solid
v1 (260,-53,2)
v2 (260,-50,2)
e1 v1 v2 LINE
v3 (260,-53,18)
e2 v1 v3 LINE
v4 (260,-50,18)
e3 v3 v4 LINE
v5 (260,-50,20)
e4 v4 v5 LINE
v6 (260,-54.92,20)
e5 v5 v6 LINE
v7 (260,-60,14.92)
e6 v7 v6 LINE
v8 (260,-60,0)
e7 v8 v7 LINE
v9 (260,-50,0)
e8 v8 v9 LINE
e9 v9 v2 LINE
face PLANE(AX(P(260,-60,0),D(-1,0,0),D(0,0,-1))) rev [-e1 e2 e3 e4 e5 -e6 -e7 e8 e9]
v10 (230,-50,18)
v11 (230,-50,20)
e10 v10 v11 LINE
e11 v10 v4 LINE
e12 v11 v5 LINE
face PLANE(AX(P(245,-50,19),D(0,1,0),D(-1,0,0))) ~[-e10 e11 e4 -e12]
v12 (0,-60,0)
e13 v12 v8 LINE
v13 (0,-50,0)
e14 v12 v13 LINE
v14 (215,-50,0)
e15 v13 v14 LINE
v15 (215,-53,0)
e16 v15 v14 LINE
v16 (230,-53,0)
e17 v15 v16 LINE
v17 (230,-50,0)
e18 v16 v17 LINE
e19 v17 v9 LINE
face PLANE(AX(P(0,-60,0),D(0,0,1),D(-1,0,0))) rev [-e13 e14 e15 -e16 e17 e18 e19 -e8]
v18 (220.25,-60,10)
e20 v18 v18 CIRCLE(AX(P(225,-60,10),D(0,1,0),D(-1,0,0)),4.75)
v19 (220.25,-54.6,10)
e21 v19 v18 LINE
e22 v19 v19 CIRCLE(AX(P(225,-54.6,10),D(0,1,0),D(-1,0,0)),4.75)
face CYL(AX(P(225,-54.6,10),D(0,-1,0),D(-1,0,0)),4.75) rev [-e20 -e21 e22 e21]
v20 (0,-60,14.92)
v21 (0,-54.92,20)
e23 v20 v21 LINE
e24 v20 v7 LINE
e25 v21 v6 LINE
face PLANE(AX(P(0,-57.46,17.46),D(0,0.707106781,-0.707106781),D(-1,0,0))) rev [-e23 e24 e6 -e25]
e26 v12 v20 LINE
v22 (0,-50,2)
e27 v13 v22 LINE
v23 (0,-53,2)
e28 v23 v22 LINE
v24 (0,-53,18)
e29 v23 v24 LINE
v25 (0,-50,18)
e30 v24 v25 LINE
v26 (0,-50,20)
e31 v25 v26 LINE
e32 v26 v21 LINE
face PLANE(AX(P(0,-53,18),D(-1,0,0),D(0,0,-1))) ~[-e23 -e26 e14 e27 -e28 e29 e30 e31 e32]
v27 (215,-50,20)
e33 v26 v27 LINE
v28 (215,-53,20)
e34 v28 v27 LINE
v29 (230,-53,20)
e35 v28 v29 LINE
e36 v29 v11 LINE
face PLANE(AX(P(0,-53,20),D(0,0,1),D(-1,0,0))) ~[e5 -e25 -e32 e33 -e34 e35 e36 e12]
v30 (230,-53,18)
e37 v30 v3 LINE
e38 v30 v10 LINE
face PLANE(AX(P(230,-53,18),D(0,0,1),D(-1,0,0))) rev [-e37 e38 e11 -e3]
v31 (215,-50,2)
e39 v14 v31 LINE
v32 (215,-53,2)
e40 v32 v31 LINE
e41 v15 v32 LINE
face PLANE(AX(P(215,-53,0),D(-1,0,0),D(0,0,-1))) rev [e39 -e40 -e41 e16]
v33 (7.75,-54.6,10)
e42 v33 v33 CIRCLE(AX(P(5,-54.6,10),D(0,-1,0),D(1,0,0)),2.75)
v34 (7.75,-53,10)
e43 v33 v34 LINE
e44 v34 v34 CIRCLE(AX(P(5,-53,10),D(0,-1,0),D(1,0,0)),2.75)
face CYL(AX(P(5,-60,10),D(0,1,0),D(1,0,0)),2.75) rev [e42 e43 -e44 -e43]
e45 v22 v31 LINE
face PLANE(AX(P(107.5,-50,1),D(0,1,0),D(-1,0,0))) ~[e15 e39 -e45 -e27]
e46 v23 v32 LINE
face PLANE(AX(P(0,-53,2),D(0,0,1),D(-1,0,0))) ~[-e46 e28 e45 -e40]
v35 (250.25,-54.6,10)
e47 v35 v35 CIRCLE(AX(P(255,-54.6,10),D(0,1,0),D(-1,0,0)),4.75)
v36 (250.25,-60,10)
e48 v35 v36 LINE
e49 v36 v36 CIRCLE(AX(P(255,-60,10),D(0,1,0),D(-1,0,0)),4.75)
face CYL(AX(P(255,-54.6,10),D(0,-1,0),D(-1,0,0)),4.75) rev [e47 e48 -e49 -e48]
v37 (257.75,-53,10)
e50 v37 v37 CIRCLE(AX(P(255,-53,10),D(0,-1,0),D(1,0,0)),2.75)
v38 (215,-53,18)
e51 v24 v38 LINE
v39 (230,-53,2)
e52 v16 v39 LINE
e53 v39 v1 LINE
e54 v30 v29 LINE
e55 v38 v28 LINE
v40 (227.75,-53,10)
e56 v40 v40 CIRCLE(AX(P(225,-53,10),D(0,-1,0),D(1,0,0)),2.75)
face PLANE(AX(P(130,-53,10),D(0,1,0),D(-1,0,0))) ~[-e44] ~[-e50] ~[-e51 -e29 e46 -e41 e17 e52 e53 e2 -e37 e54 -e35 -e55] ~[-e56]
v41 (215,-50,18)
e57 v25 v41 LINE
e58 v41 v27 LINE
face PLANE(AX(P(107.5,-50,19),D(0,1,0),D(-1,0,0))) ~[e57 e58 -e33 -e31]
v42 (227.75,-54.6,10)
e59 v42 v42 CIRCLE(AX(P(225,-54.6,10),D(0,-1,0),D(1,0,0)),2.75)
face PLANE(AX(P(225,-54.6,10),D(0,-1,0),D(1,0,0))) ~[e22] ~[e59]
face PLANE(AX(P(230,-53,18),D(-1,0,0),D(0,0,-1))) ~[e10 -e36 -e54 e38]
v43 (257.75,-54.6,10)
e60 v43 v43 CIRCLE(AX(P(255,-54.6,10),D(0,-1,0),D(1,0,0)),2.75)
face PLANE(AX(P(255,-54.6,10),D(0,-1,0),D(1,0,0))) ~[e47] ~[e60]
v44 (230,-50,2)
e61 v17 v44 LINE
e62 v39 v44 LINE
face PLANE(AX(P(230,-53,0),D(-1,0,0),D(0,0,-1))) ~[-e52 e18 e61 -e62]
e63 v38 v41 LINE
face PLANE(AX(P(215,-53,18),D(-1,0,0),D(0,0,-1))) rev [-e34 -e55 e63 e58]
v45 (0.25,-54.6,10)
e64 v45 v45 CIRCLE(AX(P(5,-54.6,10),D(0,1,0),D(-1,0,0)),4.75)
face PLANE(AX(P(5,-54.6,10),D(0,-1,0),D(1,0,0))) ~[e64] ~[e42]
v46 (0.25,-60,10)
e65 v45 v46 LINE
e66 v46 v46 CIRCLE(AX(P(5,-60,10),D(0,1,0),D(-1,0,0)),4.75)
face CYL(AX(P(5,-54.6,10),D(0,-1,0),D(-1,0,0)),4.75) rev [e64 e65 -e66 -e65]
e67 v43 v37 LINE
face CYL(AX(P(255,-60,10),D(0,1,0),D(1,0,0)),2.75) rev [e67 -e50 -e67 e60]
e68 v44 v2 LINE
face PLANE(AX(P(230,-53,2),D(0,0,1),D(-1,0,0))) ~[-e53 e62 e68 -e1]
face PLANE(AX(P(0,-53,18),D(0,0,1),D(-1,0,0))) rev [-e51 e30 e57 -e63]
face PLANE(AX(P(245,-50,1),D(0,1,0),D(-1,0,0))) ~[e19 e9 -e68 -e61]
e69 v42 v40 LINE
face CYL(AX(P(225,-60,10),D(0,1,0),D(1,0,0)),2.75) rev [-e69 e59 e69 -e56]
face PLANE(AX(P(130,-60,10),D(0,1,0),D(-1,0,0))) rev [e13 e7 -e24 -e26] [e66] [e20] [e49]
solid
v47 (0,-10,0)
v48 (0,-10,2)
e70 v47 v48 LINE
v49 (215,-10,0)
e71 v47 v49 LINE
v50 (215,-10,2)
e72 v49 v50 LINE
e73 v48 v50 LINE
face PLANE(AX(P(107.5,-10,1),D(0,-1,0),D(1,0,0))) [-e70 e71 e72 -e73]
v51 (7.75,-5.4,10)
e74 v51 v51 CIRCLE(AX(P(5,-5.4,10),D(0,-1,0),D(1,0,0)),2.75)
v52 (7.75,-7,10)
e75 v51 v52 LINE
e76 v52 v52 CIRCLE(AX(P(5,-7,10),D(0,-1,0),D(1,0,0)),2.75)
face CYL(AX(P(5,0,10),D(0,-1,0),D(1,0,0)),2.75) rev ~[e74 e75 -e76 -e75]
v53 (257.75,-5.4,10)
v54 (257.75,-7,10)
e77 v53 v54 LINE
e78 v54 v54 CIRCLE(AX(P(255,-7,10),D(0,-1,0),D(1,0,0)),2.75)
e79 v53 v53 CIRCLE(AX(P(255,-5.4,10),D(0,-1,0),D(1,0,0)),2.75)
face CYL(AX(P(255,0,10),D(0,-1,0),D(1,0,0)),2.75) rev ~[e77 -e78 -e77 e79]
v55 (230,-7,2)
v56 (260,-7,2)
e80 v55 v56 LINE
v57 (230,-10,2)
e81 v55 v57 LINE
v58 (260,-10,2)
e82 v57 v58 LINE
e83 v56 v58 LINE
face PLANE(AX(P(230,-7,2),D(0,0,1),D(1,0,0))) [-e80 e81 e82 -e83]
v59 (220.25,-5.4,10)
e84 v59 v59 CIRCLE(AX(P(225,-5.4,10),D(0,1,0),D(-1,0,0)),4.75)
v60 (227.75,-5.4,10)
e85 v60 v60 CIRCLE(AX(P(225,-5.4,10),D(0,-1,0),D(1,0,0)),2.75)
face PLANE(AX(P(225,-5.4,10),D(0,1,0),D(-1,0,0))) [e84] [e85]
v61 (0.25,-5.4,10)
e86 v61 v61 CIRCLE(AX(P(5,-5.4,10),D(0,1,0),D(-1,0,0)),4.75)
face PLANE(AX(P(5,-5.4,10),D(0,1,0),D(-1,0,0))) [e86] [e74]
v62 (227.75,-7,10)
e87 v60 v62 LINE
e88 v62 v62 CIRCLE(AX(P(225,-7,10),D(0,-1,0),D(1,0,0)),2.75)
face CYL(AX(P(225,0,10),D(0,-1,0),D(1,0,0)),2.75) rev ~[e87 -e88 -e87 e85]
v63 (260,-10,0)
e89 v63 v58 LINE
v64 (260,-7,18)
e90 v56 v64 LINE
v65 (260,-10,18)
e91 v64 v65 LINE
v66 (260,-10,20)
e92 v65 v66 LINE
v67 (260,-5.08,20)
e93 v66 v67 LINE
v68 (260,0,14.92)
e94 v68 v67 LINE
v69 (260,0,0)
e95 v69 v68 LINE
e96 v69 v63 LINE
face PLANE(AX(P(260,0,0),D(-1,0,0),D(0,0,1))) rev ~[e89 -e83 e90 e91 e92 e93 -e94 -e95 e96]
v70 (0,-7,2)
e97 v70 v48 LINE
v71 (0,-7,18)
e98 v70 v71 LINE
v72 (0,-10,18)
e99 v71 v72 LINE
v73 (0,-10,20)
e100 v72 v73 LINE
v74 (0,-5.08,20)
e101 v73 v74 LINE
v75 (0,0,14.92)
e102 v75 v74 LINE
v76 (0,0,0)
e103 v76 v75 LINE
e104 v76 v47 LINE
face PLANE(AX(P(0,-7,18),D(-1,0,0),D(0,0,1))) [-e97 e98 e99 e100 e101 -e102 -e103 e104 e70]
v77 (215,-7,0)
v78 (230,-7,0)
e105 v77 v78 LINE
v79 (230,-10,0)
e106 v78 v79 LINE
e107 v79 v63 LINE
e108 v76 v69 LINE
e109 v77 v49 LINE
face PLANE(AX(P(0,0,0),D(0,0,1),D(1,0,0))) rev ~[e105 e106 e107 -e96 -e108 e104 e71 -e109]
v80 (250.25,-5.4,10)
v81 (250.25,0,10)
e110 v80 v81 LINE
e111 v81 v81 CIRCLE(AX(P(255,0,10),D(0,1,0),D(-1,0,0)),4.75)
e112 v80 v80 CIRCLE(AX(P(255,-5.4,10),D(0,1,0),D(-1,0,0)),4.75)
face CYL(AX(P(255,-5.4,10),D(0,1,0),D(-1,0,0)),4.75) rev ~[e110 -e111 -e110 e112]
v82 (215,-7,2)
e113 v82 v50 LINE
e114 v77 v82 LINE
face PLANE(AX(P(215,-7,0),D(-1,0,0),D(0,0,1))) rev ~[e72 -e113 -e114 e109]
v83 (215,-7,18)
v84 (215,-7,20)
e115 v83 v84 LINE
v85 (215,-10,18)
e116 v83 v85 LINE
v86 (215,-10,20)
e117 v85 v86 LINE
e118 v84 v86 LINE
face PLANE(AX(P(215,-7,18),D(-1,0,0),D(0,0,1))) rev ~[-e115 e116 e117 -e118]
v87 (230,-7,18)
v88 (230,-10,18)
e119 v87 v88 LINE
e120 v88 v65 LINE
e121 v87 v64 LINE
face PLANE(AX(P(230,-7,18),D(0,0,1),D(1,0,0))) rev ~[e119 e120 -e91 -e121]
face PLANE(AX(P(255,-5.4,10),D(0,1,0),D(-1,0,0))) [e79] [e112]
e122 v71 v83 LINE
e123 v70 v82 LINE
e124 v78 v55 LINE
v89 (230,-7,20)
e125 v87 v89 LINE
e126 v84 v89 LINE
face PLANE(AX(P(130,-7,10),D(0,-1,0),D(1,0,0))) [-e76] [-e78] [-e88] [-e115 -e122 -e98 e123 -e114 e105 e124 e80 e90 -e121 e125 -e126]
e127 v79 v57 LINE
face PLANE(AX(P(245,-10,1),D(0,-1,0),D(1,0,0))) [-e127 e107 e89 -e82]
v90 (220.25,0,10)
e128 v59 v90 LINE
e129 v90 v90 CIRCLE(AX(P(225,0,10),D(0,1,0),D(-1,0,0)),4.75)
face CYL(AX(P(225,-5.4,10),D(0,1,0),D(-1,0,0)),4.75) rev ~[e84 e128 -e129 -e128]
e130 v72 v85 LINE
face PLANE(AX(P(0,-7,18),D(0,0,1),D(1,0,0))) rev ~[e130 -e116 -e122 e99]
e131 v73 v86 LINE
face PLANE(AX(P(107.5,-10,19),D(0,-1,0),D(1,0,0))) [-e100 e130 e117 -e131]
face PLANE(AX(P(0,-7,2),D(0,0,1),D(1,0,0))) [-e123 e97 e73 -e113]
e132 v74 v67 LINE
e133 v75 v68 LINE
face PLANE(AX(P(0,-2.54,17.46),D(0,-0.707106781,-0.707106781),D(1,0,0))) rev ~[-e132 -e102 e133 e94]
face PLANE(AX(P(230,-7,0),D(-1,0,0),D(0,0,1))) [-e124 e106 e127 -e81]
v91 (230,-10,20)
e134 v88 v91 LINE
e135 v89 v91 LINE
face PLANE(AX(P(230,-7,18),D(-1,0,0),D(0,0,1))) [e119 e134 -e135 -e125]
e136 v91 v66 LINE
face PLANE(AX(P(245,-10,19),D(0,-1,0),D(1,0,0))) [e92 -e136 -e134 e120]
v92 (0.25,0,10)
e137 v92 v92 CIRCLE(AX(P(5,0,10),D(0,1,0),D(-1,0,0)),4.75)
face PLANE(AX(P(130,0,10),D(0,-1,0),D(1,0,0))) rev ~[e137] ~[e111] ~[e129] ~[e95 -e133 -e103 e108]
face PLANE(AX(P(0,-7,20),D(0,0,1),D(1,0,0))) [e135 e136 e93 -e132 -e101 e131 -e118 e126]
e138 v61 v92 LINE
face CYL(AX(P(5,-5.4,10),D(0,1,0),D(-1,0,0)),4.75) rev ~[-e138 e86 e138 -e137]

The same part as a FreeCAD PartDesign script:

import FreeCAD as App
import Part
import Sketcher

V = App.Vector


def edges_at(feature, points):
    """Names of the edges that pass closest to the given points."""
    edges = feature.Shape.Edges
    near = lambda p: min(range(len(edges)), key=lambda i: edges[i].distToShape(Part.Vertex(*p))[0])
    return sorted({f"Edge{near(p) + 1}" for p in points})


def add_polygon(sketch, points):
    """Adds a closed chain of lines whose ends are joined by coincident constraints."""
    first, n = sketch.GeometryCount, len(points)
    for a, b in zip(points, points[1:] + points[:1]):
        sketch.addGeometry(Part.LineSegment(App.Vector(*a, 0), App.Vector(*b, 0)), False)
    for i in range(n):
        sketch.addConstraint(Sketcher.Constraint("Coincident", first + i, 2, first + (i + 1) % n, 1))

doc = App.newDocument("Part")
params = doc.addObject("Spreadsheet::Sheet", "Params")
for row, (alias, value) in enumerate([
    ("sketch1_width", "260 mm"),
    ("sketch1_height", "20 mm"),
    ("pad1_length", "7 mm"),
    ("sketch2_diameter", "5.5 mm"),
    ("hole_diameter", "5.5 mm"),
    ("hole_cbore_diameter", "9.5 mm"),
    ("hole_cbore_depth", "5.4 mm"),
    ("sketch3_width", "215 mm"),
    ("sketch3_width2", "30 mm"),
    ("sketch3_height", "2 mm"),
    ("pad2_length", "3 mm"),
    ("chamfer_size", "5.08 mm"),
], start=1):
    params.set(f"A{row}", alias)
    params.set(f"B{row}", "=" + value)
    params.setAlias(f"B{row}", alias)

body = doc.addObject("PartDesign::Body", "Body")

sketch1 = body.newObject("Sketcher::SketchObject", "Sketch")
sketch1.AttachmentSupport = (doc.getObject("XZ_Plane"), [""])
sketch1.MapMode = "FlatFace"
add_polygon(sketch1, [(0, 20), (0, 0), (260, 0), (260, 20)])
sketch1.addConstraint([
    Sketcher.Constraint("Vertical", 0),
    Sketcher.Constraint("Horizontal", 1),
    Sketcher.Constraint("Vertical", 2),
    Sketcher.Constraint("Horizontal", 3),
    Sketcher.Constraint("Coincident", 0, 2, -1, 1),
    Sketcher.Constraint("DistanceX", 1, 1, 1, 2, 260.0),
    Sketcher.Constraint("DistanceY", 0, 2, 0, 1, 20.0),
])
sketch1.setExpression("Constraints[9]", "Params.sketch1_width")
sketch1.setExpression("Constraints[10]", "Params.sketch1_height")
pad1 = body.newObject("PartDesign::Pad", "Pad")
pad1.Profile = sketch1
pad1.setExpression("Length", "Params.pad1_length")

sketch2 = body.newObject("Sketcher::SketchObject", "Sketch001")
sketch2.AttachmentSupport = (doc.getObject("XZ_Plane"), [""])
sketch2.MapMode = "FlatFace"
sketch2.addGeometry([
    Part.Circle(V(225, 10, 0), V(0, 0, 1), 2.8),
    Part.Circle(V(5, 10, 0), V(0, 0, 1), 2.8),
    Part.Circle(V(255, 10, 0), V(0, 0, 1), 2.8),
], False)
sketch2.addConstraint([
    Sketcher.Constraint("Equal", 0, 1),
    Sketcher.Constraint("Equal", 1, 2),
    Sketcher.Constraint("Horizontal", 0, 3, 1, 3),
    Sketcher.Constraint("Horizontal", 1, 3, 2, 3),
    Sketcher.Constraint("Diameter", 0, 5.5),
    Sketcher.Constraint("DistanceX", -1, 1, 0, 3, 225.0),
    Sketcher.Constraint("DistanceY", -1, 1, 0, 3, 10.0),
    Sketcher.Constraint("DistanceX", -1, 1, 1, 3, 5.0),
    Sketcher.Constraint("DistanceX", -1, 1, 2, 3, 255.0),
])
sketch2.setExpression("Constraints[4]", "Params.sketch2_diameter")
doc.recompute()
hole = body.newObject("PartDesign::Hole", "Hole")
hole.Profile = sketch2
hole.ThreadType = "None"
hole.setExpression("Diameter", "Params.hole_diameter")
hole.DepthType = "ThroughAll"
hole.HoleCutType = "Counterbore"
hole.setExpression("HoleCutDiameter", "Params.hole_cbore_diameter")
hole.setExpression("HoleCutDepth", "Params.hole_cbore_depth")
hole.Reversed = True

sketch3 = body.newObject("Sketcher::SketchObject", "Sketch002")
sketch3.AttachmentSupport = (doc.getObject("XZ_Plane"), [""])
sketch3.MapMode = "FlatFace"
sketch3.AttachmentOffset = App.Placement(V(0, 0, 7), App.Rotation())
add_polygon(sketch3, [(0, 20), (0, 18), (215, 18), (215, 20)])
add_polygon(sketch3, [(230, 20), (230, 18), (260, 18), (260, 20)])
add_polygon(sketch3, [(0, 2), (0, 0), (215, 0), (215, 2)])
add_polygon(sketch3, [(230, 2), (230, 0), (260, 0), (260, 2)])
sketch3.addConstraint([
    Sketcher.Constraint("Vertical", 0),
    Sketcher.Constraint("Horizontal", 1),
    Sketcher.Constraint("Vertical", 2),
    Sketcher.Constraint("Horizontal", 3),
    Sketcher.Constraint("Vertical", 4),
    Sketcher.Constraint("Horizontal", 5),
    Sketcher.Constraint("Vertical", 6),
    Sketcher.Constraint("Horizontal", 7),
    Sketcher.Constraint("Vertical", 8),
    Sketcher.Constraint("Horizontal", 9),
    Sketcher.Constraint("Vertical", 10),
    Sketcher.Constraint("Horizontal", 11),
    Sketcher.Constraint("Vertical", 12),
    Sketcher.Constraint("Horizontal", 13),
    Sketcher.Constraint("Vertical", 14),
    Sketcher.Constraint("Horizontal", 15),
    Sketcher.Constraint("Coincident", 8, 2, -1, 1),
    Sketcher.Constraint("PointOnObject", 0, 2, -2),
    Sketcher.Constraint("PointOnObject", 12, 2, -1),
    Sketcher.Constraint("Horizontal", 1, 2, 4, 2),
    Sketcher.Constraint("Horizontal", 3, 2, 6, 2),
    Sketcher.Constraint("Horizontal", 11, 2, 14, 2),
    Sketcher.Constraint("Vertical", 2, 2, 9, 2),
    Sketcher.Constraint("Vertical", 7, 2, 12, 2),
    Sketcher.Constraint("Vertical", 6, 2, 13, 2),
    Sketcher.Constraint("Equal", 6, 8),
    Sketcher.Constraint("DistanceX", 1, 1, 1, 2, 215.0),
    Sketcher.Constraint("DistanceX", 5, 1, 5, 2, 30.0),
    Sketcher.Constraint("DistanceY", 0, 2, 0, 1, 2.0),
    Sketcher.Constraint("DistanceY", -1, 1, 0, 2, 18.0),
    Sketcher.Constraint("DistanceX", -1, 1, 4, 2, 230.0),
])
sketch3.setExpression("Constraints[42]", "Params.sketch3_width")
sketch3.setExpression("Constraints[43]", "Params.sketch3_width2")
sketch3.setExpression("Constraints[44]", "Params.sketch3_height")
pad2 = body.newObject("PartDesign::Pad", "Pad001")
pad2.Profile = sketch3
pad2.setExpression("Length", "Params.pad2_length")
doc.recompute()

chamfer = body.newObject("PartDesign::Chamfer", "Chamfer")
chamfer.Base = (pad2, edges_at(pad2, [(130, 0, 20)]))
chamfer.setExpression("Size", "Params.chamfer_size")
body2 = doc.addObject("PartDesign::Body", "Body001")
doc.recompute()

mirroring = doc.addObject("Part::Mirroring", "Mirroring")
mirroring.Source = body
mirroring.Base = V(107.5, -30, 19)
mirroring.Normal = V(0, -1, 0)
body2.BaseFeature = mirroring
doc.recompute()
mirroring.Visibility = False

doc.recompute()
